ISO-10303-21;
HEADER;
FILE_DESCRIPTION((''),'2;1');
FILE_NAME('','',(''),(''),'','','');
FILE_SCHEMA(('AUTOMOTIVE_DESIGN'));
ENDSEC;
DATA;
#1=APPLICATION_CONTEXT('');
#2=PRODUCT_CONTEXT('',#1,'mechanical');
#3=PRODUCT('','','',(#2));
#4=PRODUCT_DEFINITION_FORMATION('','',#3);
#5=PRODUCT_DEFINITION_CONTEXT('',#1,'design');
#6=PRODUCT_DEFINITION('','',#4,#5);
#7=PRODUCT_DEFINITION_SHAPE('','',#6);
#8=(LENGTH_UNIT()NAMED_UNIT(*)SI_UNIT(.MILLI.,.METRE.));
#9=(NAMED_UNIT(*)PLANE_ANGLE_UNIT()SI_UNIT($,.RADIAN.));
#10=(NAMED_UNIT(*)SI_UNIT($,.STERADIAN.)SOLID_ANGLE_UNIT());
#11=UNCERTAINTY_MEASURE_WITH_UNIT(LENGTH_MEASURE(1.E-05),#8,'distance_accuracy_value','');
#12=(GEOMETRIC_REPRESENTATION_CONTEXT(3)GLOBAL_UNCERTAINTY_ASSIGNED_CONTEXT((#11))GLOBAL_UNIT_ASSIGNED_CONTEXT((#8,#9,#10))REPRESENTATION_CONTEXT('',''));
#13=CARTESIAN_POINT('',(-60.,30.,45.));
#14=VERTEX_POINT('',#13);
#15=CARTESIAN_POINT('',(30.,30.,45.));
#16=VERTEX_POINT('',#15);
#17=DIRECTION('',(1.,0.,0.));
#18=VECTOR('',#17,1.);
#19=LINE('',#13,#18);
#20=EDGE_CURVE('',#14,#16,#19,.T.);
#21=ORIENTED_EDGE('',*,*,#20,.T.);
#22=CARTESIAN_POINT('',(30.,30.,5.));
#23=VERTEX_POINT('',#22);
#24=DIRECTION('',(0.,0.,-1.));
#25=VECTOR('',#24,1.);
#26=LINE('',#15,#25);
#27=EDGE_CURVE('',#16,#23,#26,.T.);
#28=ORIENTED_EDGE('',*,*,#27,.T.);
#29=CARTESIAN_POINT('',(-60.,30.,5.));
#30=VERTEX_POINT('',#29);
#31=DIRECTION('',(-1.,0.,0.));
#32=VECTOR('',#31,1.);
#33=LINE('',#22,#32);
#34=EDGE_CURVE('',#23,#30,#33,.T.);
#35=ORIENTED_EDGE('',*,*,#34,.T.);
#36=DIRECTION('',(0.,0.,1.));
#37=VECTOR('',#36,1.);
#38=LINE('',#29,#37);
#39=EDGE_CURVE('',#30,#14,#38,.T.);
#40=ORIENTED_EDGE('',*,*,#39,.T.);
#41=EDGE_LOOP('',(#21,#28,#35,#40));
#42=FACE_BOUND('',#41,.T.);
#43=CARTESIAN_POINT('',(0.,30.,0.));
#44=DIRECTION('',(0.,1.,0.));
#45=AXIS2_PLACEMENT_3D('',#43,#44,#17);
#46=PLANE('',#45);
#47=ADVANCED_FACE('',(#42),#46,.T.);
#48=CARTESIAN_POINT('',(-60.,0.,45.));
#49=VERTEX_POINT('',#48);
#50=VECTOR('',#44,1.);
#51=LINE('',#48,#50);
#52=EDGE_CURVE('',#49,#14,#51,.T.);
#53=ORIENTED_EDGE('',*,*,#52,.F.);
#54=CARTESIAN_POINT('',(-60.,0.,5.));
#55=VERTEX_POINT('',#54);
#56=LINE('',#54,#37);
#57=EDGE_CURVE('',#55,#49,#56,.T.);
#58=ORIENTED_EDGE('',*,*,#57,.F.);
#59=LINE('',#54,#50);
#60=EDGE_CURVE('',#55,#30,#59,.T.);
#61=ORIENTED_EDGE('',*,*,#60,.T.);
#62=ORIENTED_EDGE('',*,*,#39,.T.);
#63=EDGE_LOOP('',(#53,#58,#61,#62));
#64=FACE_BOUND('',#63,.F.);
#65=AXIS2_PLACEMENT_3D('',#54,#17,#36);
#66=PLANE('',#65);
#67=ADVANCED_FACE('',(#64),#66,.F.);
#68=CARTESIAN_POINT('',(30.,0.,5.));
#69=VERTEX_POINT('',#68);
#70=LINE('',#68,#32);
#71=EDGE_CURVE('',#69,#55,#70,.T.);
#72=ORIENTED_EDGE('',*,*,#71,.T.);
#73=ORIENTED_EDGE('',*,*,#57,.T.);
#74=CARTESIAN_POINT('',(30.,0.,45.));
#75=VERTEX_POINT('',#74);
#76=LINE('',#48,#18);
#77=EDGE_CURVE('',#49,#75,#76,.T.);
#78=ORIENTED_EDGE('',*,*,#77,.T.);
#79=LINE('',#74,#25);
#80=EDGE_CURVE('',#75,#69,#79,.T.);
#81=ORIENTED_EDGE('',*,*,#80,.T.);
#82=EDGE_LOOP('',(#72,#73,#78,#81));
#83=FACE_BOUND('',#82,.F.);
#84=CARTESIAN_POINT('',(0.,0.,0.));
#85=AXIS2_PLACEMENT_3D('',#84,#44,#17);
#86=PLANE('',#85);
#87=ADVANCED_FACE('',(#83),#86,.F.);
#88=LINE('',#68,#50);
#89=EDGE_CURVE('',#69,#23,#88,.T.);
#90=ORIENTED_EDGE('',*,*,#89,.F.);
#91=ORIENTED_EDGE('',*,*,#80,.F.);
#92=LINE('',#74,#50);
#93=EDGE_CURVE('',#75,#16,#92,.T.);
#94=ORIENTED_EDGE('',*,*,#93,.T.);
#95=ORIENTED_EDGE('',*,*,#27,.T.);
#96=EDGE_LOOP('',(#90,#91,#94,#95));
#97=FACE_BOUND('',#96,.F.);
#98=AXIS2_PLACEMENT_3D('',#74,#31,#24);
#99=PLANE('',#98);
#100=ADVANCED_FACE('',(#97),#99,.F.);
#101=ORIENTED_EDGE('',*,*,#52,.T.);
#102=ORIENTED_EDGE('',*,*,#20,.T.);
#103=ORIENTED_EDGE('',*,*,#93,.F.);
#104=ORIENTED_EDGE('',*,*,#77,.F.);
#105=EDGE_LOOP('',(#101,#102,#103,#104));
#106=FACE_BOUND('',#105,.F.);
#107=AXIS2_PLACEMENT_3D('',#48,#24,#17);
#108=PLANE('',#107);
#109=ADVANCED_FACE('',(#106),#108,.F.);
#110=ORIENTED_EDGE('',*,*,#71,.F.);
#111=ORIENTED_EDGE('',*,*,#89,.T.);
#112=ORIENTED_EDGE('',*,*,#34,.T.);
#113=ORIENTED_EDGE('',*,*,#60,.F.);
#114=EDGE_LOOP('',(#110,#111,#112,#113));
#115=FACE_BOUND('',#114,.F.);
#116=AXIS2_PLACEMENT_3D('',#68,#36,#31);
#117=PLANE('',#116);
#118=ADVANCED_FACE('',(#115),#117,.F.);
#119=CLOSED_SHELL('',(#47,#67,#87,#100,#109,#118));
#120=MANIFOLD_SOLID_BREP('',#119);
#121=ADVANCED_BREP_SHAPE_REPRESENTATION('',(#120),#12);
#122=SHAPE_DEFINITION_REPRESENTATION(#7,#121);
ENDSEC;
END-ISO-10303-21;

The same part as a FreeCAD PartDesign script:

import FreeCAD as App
import Part
import Sketcher

doc = App.newDocument("Part")
params = doc.addObject("Spreadsheet::Sheet", "Params")
for row, (alias, value) in enumerate([
    ("sketch1_width", "90 mm"),
    ("sketch1_height", "40 mm"),
    ("pad1_length", "30 mm"),
], start=1):
    params.set(f"A{row}", alias)
    params.set(f"B{row}", "=" + value)
    params.setAlias(f"B{row}", alias)

body = doc.addObject("PartDesign::Body", "Body")

# Sketch on XZ plane
sketch1 = doc.addObject("Sketcher::SketchObject", "Sketch")
body.addObject(sketch1)
sketch1.AttachmentSupport = (doc.XZ_Plane, [""])
sketch1.MapMode = "FlatFace"
sketch1.addGeometry([
    Part.LineSegment(App.Vector(-60, 5, 0), App.Vector(-60, 45, 0)),
    Part.LineSegment(App.Vector(-60, 45, 0), App.Vector(30, 45, 0)),
    Part.LineSegment(App.Vector(30, 45, 0), App.Vector(30, 5, 0)),
    Part.LineSegment(App.Vector(30, 5, 0), App.Vector(-60, 5, 0)),
], False)
sketch1.addConstraint([
    Sketcher.Constraint("Coincident", 0, 2, 1, 1),
    Sketcher.Constraint("Coincident", 1, 2, 2, 1),
    Sketcher.Constraint("Coincident", 2, 2, 3, 1),
    Sketcher.Constraint("Coincident", 3, 2, 0, 1),
    Sketcher.Constraint("Vertical", 0),
    Sketcher.Constraint("Horizontal", 1),
    Sketcher.Constraint("Vertical", 2),
    Sketcher.Constraint("Horizontal", 3),
    Sketcher.Constraint("DistanceX", 1, 1, 1, 2, 90.0),
    Sketcher.Constraint("DistanceY", 0, 1, 0, 2, 40.0),
    Sketcher.Constraint("DistanceX", 0, 2, -1, 1, 60.0),
    Sketcher.Constraint("DistanceY", -1, 1, 0, 2, 45.0),
])
sketch1.setExpression("Constraints[8]", "Params.sketch1_width")
sketch1.setExpression("Constraints[9]", "Params.sketch1_height")
pad1 = doc.addObject("PartDesign::Pad", "Pad")
body.addObject(pad1)
pad1.Profile = sketch1
pad1.setExpression("Length", "Params.pad1_length")
pad1.Reversed = True

doc.recompute()
